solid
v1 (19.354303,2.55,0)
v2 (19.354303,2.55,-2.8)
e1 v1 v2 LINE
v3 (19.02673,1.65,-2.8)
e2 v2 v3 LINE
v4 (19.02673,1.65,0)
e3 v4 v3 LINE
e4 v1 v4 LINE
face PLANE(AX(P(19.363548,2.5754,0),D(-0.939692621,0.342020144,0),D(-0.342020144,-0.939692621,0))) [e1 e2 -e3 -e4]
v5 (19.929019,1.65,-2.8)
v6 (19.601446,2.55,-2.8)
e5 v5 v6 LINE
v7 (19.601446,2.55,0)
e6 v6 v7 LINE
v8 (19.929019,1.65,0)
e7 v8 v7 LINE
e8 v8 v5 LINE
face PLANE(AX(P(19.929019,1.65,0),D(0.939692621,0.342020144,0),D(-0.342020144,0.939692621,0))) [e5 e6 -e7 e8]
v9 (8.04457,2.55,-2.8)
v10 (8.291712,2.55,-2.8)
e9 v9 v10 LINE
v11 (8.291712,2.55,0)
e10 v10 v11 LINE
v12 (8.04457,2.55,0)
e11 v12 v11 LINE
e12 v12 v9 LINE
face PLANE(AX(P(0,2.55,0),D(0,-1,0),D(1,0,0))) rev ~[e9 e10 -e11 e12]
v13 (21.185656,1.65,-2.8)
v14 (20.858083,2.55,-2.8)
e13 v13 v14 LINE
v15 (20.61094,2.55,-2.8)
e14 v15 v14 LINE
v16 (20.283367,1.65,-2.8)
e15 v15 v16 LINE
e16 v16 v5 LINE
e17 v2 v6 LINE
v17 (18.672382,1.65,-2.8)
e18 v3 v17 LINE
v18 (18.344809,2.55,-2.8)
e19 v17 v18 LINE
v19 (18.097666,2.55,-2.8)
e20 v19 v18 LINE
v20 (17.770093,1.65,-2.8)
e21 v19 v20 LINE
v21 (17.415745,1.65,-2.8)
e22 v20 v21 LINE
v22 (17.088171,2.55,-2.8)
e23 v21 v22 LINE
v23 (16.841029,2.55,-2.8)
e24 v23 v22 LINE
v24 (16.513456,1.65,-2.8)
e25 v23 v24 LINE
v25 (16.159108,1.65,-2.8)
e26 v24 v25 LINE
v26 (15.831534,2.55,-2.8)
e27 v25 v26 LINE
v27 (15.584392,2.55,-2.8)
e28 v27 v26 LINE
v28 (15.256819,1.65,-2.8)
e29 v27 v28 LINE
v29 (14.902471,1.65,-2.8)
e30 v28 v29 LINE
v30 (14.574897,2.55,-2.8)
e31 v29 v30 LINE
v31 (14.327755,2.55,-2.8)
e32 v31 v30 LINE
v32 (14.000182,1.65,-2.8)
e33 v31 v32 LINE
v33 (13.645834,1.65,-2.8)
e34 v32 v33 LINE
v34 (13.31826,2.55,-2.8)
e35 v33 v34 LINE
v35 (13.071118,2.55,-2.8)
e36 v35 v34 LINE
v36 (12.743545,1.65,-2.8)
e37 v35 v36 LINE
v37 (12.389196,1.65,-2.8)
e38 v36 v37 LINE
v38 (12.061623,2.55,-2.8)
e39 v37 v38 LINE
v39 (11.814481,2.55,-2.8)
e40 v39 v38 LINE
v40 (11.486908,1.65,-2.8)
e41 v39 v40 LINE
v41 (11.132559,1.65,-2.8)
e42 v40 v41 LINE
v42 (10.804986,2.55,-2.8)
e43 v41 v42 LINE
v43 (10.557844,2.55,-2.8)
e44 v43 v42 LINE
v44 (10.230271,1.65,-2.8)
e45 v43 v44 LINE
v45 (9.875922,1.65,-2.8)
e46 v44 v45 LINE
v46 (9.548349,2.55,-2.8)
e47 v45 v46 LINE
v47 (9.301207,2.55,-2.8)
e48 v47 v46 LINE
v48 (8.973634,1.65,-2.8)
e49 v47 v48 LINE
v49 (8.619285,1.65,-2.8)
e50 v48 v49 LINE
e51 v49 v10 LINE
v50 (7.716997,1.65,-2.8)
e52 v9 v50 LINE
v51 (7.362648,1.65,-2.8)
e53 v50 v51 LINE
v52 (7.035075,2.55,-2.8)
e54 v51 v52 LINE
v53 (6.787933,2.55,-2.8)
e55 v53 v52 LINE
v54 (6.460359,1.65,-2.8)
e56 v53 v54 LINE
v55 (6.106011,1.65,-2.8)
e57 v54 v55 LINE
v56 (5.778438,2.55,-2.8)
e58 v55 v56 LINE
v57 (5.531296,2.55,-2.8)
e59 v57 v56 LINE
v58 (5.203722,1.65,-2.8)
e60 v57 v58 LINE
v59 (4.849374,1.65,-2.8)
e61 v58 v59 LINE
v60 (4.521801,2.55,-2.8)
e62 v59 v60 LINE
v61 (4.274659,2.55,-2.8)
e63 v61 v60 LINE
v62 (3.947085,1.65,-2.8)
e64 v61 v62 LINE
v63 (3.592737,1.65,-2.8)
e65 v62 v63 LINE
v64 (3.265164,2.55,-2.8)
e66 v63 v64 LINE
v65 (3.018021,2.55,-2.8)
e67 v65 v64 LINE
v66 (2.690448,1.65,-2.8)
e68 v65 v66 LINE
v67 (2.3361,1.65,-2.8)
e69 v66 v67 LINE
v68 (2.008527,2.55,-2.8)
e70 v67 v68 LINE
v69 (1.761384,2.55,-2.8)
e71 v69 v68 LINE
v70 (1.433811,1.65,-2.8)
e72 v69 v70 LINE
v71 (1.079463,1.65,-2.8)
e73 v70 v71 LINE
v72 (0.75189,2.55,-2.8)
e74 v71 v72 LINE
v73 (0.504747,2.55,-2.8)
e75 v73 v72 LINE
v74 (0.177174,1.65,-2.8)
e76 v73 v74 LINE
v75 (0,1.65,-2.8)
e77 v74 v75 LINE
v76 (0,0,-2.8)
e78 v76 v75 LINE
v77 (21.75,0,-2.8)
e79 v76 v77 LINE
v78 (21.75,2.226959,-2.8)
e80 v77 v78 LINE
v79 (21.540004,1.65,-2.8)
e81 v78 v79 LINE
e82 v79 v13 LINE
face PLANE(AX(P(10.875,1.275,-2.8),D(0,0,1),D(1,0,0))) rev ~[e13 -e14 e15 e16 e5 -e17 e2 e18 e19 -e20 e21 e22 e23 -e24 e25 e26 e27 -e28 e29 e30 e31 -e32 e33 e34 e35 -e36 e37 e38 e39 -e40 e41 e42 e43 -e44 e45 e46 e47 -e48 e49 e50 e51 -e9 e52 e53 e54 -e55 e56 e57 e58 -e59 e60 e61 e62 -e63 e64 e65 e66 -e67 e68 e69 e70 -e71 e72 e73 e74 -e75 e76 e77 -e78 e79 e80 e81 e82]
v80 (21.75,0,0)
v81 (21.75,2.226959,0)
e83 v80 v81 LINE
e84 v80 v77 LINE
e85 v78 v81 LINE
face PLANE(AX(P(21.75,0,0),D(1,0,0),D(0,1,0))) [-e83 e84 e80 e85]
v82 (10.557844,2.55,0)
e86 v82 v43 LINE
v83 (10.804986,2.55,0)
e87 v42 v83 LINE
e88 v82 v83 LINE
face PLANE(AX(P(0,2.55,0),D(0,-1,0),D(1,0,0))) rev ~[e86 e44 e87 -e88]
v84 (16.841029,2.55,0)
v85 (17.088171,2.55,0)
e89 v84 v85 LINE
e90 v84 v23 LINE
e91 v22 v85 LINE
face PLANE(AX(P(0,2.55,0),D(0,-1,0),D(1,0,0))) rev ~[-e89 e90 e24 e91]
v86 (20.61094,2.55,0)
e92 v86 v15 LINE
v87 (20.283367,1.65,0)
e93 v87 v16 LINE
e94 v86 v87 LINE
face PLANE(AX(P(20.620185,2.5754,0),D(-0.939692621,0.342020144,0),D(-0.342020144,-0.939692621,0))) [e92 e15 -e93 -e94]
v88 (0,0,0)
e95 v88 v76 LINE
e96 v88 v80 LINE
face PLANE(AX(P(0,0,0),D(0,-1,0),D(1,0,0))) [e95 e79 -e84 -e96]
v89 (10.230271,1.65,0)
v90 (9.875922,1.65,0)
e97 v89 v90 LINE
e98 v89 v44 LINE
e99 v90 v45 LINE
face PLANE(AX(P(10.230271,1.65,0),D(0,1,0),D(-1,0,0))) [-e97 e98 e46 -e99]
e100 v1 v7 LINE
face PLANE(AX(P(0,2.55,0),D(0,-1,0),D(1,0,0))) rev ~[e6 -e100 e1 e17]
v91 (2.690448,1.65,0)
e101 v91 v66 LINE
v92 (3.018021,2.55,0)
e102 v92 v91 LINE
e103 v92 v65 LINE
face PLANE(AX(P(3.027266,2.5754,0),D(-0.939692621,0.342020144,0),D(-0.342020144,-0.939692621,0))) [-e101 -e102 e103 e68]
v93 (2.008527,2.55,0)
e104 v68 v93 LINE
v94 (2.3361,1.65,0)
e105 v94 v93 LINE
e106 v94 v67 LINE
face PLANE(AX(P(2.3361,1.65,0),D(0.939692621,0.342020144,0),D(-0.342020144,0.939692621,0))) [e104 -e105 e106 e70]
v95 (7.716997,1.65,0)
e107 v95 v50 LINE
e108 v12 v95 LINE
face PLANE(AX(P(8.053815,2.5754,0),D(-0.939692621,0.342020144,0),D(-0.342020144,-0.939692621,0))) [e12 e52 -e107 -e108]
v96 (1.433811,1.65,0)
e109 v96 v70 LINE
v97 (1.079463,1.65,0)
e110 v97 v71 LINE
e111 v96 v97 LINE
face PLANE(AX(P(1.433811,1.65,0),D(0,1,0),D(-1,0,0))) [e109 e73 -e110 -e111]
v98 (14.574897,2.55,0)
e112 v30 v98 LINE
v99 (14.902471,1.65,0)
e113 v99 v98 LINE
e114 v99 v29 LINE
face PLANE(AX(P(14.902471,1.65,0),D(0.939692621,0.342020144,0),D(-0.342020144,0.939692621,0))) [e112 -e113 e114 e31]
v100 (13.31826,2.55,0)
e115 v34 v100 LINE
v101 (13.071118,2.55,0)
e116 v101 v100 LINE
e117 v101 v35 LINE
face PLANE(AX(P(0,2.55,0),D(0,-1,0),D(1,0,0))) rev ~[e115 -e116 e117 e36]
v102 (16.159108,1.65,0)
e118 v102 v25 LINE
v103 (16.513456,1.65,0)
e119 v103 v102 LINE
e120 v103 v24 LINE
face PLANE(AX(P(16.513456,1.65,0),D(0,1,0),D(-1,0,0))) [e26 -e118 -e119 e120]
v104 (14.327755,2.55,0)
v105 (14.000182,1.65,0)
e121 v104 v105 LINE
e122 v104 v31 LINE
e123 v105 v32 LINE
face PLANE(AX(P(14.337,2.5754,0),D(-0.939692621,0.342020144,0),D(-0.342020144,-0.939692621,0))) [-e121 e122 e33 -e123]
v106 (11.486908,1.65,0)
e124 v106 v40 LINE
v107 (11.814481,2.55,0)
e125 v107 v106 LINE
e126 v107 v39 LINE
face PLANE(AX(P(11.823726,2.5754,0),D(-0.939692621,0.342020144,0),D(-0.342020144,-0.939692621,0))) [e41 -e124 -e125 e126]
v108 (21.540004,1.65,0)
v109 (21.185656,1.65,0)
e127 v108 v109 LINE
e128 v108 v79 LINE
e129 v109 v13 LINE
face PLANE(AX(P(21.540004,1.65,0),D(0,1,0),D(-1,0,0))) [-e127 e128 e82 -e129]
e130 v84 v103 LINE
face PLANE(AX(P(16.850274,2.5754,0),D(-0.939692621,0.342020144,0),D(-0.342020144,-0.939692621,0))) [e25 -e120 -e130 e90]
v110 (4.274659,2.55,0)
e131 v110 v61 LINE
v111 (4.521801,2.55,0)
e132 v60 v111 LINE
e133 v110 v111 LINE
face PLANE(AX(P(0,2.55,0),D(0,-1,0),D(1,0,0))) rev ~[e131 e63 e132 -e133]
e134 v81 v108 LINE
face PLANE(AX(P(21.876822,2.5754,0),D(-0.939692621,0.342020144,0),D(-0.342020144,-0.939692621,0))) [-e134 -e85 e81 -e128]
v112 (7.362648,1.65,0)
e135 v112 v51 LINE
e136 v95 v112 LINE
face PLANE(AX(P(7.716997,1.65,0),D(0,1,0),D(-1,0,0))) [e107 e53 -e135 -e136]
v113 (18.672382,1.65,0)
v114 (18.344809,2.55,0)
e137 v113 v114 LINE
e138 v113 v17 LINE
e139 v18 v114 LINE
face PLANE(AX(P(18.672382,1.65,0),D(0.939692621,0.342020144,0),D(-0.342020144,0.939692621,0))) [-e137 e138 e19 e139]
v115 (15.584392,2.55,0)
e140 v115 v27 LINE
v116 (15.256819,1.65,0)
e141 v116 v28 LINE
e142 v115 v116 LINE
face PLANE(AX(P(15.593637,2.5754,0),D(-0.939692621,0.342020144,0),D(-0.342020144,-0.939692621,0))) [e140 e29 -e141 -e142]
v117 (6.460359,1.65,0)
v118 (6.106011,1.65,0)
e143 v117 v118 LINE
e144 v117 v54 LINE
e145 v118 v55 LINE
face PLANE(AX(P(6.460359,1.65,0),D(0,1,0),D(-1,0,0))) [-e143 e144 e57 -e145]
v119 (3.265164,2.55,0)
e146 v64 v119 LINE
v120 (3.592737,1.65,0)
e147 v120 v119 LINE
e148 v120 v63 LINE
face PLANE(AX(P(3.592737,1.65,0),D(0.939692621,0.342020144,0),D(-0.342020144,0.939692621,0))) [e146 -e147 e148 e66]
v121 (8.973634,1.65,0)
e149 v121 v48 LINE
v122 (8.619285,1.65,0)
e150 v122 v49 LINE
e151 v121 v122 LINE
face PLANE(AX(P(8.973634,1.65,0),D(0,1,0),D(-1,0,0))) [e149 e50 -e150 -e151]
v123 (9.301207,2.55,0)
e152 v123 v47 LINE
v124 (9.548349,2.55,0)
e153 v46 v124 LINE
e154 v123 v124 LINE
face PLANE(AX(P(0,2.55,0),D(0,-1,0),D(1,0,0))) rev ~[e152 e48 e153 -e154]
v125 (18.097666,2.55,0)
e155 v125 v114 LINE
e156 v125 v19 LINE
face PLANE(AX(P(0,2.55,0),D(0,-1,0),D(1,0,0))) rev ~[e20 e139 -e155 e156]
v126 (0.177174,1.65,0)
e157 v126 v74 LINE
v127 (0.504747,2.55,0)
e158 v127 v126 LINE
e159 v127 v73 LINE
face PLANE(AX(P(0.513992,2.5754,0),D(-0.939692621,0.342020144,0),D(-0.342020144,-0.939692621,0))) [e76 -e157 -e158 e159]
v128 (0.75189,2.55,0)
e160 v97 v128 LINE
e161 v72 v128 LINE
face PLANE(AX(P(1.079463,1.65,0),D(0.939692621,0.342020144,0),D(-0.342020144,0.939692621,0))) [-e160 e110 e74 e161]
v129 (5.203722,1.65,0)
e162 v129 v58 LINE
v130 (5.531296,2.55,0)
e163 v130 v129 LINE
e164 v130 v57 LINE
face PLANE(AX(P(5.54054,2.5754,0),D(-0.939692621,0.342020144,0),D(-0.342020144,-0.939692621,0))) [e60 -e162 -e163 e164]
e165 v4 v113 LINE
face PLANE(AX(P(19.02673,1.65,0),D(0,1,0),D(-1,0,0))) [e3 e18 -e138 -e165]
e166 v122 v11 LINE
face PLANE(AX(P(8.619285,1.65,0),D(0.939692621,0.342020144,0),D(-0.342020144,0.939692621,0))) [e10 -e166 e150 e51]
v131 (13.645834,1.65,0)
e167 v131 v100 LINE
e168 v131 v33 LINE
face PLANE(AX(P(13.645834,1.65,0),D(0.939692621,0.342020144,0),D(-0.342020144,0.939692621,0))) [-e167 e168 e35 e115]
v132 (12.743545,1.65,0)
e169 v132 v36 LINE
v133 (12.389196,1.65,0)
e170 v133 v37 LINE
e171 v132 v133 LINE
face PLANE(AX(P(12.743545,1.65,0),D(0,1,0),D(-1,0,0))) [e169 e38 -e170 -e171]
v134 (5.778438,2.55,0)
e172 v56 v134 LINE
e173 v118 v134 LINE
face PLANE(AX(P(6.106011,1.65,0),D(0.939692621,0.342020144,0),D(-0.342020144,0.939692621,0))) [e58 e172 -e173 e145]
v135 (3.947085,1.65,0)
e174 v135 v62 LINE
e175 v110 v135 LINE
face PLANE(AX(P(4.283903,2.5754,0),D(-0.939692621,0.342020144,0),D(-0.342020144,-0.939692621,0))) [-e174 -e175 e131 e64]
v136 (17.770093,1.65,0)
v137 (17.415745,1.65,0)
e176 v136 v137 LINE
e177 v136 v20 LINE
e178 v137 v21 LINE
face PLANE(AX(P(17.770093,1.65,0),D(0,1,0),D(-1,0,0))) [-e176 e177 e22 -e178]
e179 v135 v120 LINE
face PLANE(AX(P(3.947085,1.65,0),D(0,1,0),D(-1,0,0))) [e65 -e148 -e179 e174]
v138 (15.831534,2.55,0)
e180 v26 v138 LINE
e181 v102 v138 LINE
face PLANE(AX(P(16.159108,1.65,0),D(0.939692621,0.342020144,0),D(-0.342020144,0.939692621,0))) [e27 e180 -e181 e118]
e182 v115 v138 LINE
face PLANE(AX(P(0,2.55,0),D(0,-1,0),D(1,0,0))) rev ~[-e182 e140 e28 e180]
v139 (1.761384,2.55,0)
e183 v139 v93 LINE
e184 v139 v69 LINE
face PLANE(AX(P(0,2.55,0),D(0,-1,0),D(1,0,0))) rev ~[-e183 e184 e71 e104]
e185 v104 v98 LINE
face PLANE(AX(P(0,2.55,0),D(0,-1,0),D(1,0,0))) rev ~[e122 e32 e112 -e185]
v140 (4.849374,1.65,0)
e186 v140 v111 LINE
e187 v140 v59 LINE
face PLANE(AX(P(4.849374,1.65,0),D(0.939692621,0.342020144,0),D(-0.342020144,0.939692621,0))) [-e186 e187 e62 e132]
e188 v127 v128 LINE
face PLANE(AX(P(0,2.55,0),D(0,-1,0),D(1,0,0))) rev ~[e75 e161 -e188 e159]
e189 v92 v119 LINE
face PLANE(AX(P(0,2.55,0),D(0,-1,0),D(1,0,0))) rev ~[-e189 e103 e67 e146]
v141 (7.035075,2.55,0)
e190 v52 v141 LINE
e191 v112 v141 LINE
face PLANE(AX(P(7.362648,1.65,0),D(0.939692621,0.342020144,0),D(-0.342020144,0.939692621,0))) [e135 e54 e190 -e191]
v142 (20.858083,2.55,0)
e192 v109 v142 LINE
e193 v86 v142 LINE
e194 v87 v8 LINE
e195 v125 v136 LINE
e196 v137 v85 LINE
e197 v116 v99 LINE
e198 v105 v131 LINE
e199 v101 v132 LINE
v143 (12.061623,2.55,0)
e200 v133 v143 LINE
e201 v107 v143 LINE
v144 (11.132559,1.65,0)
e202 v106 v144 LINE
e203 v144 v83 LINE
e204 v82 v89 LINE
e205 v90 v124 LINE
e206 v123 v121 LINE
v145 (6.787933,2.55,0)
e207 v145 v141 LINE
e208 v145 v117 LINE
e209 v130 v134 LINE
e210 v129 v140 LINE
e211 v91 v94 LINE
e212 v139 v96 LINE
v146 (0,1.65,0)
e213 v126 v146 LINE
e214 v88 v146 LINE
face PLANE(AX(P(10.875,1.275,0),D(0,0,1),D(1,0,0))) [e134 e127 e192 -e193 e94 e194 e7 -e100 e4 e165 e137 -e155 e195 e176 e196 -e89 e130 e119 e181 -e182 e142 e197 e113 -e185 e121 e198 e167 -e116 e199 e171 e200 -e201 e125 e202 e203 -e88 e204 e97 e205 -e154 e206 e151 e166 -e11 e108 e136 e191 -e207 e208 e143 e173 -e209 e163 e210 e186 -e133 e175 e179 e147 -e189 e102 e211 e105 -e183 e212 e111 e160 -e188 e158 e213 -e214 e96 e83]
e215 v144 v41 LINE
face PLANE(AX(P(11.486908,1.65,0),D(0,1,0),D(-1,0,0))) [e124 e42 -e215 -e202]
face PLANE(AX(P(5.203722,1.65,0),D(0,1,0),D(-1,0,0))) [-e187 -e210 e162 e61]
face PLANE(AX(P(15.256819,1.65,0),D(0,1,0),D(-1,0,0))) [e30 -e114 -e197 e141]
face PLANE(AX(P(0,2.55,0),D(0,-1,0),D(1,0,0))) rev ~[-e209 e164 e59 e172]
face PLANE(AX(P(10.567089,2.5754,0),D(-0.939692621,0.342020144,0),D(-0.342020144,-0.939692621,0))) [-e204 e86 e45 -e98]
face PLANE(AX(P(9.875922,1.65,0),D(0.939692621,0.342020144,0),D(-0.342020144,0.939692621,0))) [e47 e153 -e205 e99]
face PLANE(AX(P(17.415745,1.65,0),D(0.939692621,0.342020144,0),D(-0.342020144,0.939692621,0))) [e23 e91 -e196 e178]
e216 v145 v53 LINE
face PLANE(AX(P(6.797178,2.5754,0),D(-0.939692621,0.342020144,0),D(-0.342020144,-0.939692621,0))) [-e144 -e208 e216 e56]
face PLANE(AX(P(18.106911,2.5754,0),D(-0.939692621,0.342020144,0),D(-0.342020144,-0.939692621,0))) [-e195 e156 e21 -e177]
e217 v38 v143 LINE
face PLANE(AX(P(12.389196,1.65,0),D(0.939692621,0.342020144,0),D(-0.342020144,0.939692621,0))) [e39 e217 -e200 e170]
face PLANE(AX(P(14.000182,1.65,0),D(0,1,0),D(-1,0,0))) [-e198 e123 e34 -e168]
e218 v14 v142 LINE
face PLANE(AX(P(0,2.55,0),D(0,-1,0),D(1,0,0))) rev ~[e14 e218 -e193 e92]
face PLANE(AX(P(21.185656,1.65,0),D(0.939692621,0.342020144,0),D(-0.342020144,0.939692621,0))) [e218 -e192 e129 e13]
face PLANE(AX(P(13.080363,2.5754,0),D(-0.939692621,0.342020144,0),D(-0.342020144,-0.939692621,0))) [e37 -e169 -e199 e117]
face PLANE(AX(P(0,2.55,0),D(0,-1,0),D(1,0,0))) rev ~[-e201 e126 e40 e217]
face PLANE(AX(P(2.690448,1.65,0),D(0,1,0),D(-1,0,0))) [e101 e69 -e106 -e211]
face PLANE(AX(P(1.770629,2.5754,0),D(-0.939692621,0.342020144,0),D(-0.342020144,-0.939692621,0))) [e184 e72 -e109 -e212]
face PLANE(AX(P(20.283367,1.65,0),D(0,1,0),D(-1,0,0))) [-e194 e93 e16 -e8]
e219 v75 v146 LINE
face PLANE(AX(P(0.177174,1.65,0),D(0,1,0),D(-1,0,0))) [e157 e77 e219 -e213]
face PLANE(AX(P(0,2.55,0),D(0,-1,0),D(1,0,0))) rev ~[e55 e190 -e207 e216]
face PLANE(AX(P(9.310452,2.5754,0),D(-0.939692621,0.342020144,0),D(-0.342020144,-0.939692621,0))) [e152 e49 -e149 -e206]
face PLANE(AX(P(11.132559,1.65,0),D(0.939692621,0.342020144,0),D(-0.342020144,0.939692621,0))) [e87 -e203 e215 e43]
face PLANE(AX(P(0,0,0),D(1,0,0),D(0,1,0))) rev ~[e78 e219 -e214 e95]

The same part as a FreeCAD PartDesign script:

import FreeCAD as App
import Part
import Sketcher

V = App.Vector
Q = App.Units.Quantity


def add_polygon(sketch, points):
    """Adds a closed chain of lines whose ends are joined by coincident constraints."""
    first, n = sketch.GeometryCount, len(points)
    for a, b in zip(points, points[1:] + points[:1]):
        sketch.addGeometry(Part.LineSegment(App.Vector(*a, 0), App.Vector(*b, 0)), False)
    for i in range(n):
        sketch.addConstraint(Sketcher.Constraint("Coincident", first + i, 2, first + (i + 1) % n, 1))

doc = App.newDocument("Part")
params = doc.addObject("Spreadsheet::Sheet", "Params")
for row, (alias, value) in enumerate([
    ("sketch1_width", "21.75 mm"),
    ("sketch1_height", "2.55 mm"),
    ("pad1_length", "2.8 mm"),
    ("linearpattern_pitch", "1.256637 mm"),
], start=1):
    params.set(f"A{row}", alias)
    params.set(f"B{row}", "=" + value)
    params.setAlias(f"B{row}", alias)

body = doc.addObject("PartDesign::Body", "Body")

sketch1 = doc.addObject("Sketcher::SketchObject", "Sketch")
body.addObject(sketch1)
sketch1.AttachmentSupport = (doc.XY_Plane, [""])
sketch1.MapMode = "FlatFace"
add_polygon(sketch1, [(0, 2.5), (0, 0), (21.8, 0), (21.8, 2.5)])
sketch1.addConstraint(Sketcher.Constraint("Vertical", 0))
sketch1.addConstraint(Sketcher.Constraint("Horizontal", 1))
sketch1.addConstraint(Sketcher.Constraint("Vertical", 2))
sketch1.addConstraint(Sketcher.Constraint("Horizontal", 3))
sketch1.addConstraint(Sketcher.Constraint("Coincident", 0, 2, -1, 1))
sketch1.addConstraint(Sketcher.Constraint("DistanceX", 1, 1, 1, 2, 21.75))
sketch1.addConstraint(Sketcher.Constraint("DistanceY", 0, 2, 0, 1, 2.55))
sketch1.setExpression("Constraints[9]", "Params.sketch1_width")
sketch1.setExpression("Constraints[10]", "Params.sketch1_height")
pad1 = doc.addObject("PartDesign::Pad", "Pad")
body.addObject(pad1)
pad1.Profile = sketch1
pad1.setExpression("Length", "Params.pad1_length")
pad1.Reversed = True

sketch2 = doc.addObject("Sketcher::SketchObject", "Sketch001")
body.addObject(sketch2)
sketch2.AttachmentSupport = (doc.XY_Plane, [""])
sketch2.MapMode = "FlatFace"
add_polygon(sketch2, [(-0.18, 1.65), (0.18, 1.65), (0.51, 2.58), (-0.51, 2.58)])
sketch2.addConstraint(Sketcher.Constraint("Horizontal", 0))
sketch2.addConstraint(Sketcher.Constraint("Horizontal", 2))
sketch2.addConstraint(Sketcher.Constraint("Equal", 1, 3))
sketch2.addConstraint(Sketcher.Constraint("Angle", 1, Q("70 deg")))
sketch2.addConstraint(Sketcher.Constraint("DistanceY", -1, 1, 0, 2, 1.65))
sketch2.addConstraint(Sketcher.Constraint("DistanceX", 0, 1, 0, 2, 0.354348))
sketch2.addConstraint(Sketcher.Constraint("DistanceY", -1, 1, 1, 2, 2.5754))
sketch2.addConstraint(Sketcher.Constraint("DistanceX", -1, 1, 0, 2, 0.177174))
pocket1 = doc.addObject("PartDesign::Pocket", "Pocket")
body.addObject(pocket1)
pocket1.Profile = sketch2
pocket1.Type = "ThroughAll"
doc.recompute()

linearpattern = doc.addObject("PartDesign::LinearPattern", "LinearPattern")
body.addObject(linearpattern)
linearpattern.Originals = [pocket1]
linearpattern.Direction = (doc.X_Axis, [""])
linearpattern.Mode = "offset"
linearpattern.setExpression("Offset", "Params.linearpattern_pitch")
linearpattern.Occurrences = 18
body.Tip = linearpattern

doc.recompute()
